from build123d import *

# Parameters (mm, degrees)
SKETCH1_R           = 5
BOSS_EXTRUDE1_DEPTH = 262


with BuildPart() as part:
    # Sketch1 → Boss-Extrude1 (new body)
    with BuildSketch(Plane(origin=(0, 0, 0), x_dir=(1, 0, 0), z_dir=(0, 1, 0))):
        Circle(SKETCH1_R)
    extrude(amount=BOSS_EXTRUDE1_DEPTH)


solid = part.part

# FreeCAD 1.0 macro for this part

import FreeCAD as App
import Part
import Sketcher

V = App.Vector

doc = App.newDocument("Part")
body = doc.addObject("PartDesign::Body", "Body")

# Sketch on XZ plane
sketch1 = body.newObject("Sketcher::SketchObject", "Sketch")
sketch1.AttachmentSupport = (doc.getObject("XZ_Plane"), [""])
sketch1.MapMode = "FlatFace"
sketch1.addGeometry(Part.Circle(V(0, 0, 0), V(0, 0, 1), 5), False)
sketch1.addConstraint([
    Sketcher.Constraint("Coincident", 0, 3, -1, 1),
    Sketcher.Constraint("Diameter", 0, 10.0),
])
pad1 = body.newObject("PartDesign::Pad", "Pad")
pad1.Profile = sketch1
pad1.Length = 262
pad1.Reversed = True

doc.recompute()
